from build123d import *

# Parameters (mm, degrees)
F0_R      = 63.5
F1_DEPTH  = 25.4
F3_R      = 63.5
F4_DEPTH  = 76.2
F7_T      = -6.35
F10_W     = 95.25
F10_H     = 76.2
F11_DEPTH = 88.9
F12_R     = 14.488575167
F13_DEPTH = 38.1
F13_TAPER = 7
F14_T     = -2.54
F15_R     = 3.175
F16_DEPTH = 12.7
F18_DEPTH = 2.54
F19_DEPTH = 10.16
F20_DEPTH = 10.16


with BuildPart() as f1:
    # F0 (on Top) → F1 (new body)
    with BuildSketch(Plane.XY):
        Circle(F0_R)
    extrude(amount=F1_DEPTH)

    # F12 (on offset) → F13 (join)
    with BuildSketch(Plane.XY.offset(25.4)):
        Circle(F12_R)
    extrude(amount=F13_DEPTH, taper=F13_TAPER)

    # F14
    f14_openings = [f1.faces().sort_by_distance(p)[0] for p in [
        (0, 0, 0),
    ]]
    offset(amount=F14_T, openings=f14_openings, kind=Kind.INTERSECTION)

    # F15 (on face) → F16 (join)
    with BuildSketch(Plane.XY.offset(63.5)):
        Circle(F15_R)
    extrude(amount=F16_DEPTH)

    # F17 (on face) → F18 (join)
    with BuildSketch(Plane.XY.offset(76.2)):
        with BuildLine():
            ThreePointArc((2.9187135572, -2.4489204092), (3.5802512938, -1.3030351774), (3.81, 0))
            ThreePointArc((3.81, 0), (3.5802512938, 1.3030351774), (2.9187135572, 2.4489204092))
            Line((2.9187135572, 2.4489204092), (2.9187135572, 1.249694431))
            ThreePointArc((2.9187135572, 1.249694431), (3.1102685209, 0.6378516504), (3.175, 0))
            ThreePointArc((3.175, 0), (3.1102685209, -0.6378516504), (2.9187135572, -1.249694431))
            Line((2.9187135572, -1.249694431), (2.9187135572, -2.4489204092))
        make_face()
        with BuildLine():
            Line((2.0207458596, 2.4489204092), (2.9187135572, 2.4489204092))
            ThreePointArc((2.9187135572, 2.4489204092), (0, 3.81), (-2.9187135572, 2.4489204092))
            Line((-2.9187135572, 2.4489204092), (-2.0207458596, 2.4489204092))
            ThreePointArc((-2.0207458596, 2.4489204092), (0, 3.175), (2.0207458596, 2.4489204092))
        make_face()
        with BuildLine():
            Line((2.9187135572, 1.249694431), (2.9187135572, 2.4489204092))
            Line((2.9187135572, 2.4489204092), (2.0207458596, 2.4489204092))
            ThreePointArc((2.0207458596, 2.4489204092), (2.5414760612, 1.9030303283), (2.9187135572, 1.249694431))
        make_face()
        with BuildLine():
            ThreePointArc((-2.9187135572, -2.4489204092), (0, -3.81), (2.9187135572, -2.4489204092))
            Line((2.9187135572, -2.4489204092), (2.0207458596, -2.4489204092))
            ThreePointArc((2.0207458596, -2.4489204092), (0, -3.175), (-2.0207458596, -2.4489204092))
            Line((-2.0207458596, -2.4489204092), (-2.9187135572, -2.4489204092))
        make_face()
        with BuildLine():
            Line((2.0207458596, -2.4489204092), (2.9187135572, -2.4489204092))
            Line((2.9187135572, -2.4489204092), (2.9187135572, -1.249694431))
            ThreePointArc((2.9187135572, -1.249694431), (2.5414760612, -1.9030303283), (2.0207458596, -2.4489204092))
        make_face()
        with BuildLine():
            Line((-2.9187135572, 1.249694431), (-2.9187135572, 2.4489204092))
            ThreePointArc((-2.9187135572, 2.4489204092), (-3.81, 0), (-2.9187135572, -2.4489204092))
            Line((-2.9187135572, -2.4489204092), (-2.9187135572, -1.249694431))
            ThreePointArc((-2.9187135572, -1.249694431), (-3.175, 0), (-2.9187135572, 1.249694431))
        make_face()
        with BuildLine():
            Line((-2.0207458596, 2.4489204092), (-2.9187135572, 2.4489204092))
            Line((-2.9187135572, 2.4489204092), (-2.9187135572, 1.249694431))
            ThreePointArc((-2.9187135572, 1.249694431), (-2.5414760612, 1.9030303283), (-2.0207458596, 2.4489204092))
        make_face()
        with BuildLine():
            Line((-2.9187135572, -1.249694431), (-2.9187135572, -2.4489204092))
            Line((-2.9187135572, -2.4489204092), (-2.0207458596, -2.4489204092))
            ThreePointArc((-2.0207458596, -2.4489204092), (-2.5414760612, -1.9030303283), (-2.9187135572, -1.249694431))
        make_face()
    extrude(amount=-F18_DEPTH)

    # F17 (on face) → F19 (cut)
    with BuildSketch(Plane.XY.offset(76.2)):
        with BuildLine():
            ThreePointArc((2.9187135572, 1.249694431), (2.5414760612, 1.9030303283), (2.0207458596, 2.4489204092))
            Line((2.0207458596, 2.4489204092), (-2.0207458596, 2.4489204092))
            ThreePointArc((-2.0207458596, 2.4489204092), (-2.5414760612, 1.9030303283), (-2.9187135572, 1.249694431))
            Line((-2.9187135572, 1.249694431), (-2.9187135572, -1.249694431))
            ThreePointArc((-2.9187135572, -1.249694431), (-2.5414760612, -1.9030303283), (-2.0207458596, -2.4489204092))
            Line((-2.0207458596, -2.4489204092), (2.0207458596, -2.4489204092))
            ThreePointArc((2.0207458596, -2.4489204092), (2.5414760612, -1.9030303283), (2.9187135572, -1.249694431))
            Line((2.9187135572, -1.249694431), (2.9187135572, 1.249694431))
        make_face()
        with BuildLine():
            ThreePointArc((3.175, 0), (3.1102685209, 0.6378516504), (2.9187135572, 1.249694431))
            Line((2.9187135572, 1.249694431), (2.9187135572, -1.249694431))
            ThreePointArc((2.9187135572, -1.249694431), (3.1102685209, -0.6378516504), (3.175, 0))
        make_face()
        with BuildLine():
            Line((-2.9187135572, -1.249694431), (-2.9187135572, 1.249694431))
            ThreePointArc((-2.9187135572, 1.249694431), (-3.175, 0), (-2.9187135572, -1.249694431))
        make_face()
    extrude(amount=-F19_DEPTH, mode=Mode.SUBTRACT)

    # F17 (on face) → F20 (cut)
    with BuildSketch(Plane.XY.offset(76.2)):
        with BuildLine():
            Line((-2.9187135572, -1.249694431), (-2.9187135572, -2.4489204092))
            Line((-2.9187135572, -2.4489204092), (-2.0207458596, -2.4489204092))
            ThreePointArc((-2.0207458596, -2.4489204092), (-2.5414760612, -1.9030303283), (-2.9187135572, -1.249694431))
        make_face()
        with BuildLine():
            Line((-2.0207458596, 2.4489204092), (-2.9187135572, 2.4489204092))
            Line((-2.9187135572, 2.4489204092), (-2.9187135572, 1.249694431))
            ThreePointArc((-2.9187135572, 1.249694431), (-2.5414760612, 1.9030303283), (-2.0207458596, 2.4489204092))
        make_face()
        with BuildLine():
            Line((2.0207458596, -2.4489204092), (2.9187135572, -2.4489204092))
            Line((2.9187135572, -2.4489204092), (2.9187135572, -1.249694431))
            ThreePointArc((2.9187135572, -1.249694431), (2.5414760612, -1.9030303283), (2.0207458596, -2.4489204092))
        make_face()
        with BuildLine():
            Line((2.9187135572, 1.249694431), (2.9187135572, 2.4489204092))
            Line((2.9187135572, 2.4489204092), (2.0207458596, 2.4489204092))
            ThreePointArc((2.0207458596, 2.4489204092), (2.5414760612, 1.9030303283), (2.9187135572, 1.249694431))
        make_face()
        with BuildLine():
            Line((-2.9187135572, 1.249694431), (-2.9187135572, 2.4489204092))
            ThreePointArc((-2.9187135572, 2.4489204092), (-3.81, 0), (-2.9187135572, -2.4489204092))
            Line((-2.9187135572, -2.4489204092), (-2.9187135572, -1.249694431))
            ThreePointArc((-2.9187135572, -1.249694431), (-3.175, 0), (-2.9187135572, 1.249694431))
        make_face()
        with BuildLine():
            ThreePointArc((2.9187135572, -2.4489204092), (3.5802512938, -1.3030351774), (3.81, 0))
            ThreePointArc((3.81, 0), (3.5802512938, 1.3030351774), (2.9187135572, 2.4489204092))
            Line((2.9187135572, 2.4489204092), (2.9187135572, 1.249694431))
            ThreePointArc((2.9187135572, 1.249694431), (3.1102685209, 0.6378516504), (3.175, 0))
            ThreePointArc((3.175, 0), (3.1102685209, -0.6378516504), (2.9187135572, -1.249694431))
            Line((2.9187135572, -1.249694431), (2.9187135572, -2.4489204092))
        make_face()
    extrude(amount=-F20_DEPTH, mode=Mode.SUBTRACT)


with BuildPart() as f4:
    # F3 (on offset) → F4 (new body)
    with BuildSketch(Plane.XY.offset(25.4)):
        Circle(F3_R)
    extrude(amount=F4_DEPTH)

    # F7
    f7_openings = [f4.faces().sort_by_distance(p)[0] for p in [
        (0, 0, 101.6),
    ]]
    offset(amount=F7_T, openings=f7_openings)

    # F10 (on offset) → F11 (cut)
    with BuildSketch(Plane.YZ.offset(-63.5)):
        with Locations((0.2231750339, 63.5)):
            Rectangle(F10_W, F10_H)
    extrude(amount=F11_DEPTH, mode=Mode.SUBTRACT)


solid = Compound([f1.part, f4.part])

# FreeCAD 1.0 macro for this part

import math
import FreeCAD as App
import Part
import Sketcher
Q = App.Units.Quantity


def faces_at(feature, points):
    """Names of the faces that lie closest to the given points."""
    faces = feature.Shape.Faces
    near = lambda p: min(range(len(faces)), key=lambda i: faces[i].distToShape(Part.Vertex(*p))[0])
    return sorted({f"Face{near(p) + 1}" for p in points})


def add_polygon(sketch, points):
    """Adds a closed chain of lines whose ends are joined by coincident constraints."""
    first, n = sketch.GeometryCount, len(points)
    for a, b in zip(points, points[1:] + points[:1]):
        sketch.addGeometry(Part.LineSegment(App.Vector(*a, 0), App.Vector(*b, 0)), False)
    for i in range(n):
        sketch.addConstraint(Sketcher.Constraint("Coincident", first + i, 2, first + (i + 1) % n, 1))

doc = App.newDocument("Part")
params = doc.addObject("Spreadsheet::Sheet", "Params")
for row, (alias, value) in enumerate([
    ("sketch1_diameter", "5 in"),
    ("pad1_length", "1 in"),
    ("pad2_length", "1.5 in"),
    ("pad2_taper", "-7 deg"),
    ("thickness_wall", "0.1 in"),
    ("sketch3_diameter", "0.25 in"),
    ("pad3_length", "0.5 in"),
    ("sketch4_radius", "0.15 in"),
    ("sketch4_radius2", "0.125 in"),
    ("pad4_length", "0.1 in"),
    ("sketch5_radius", "0.125 in"),
    ("pocket1_length", "0.4 in"),
    ("sketch6_radius", "0.15 in"),
    ("sketch6_radius2", "0.125 in"),
    ("pocket2_length", "0.4 in"),
    ("sketch7_diameter", "5 in"),
    ("pad5_length", "3 in"),
    ("thickness2_wall", "0.25 in"),
    ("sketch8_height", "3 in"),
    ("sketch8_width", "3.75 in"),
    ("pocket3_length", "3.5 in"),
], start=1):
    params.set(f"A{row}", alias)
    params.set(f"B{row}", "=" + value)
    params.setAlias(f"B{row}", alias)

body = doc.addObject("PartDesign::Body", "Body")

# Sketch on XY plane
sketch1 = body.newObject("Sketcher::SketchObject", "Sketch")
sketch1.AttachmentSupport = (doc.getObject("XY_Plane"), [""])
sketch1.MapMode = "FlatFace"
sketch1.addGeometry(Part.Circle(App.Vector(0, 0, 0), App.Vector(0, 0, 1), 64), False)
sketch1.addConstraint(Sketcher.Constraint("Coincident", 0, 3, -1, 1))
sketch1.addConstraint(Sketcher.Constraint("Diameter", 0, Q("5 in")))
sketch1.setExpression("Constraints[1]", "Params.sketch1_diameter")
pad1 = body.newObject("PartDesign::Pad", "Pad")
pad1.Profile = sketch1
pad1.setExpression("Length", "Params.pad1_length")

# Sketch on XY plane
sketch2 = body.newObject("Sketcher::SketchObject", "Sketch001")
sketch2.AttachmentSupport = (doc.getObject("XY_Plane"), [""])
sketch2.MapMode = "FlatFace"
sketch2.AttachmentOffset = App.Placement(App.Vector(0, 0, 1 * 25.4), App.Rotation())
sketch2.addGeometry(Part.Circle(App.Vector(0, 0, 0), App.Vector(0, 0, 1), 14), False)
sketch2.addConstraint(Sketcher.Constraint("Coincident", 0, 3, -1, 1))
sketch2.addConstraint(Sketcher.Constraint("Diameter", 0, 28.97715))
pad2 = body.newObject("PartDesign::Pad", "Pad001")
pad2.Profile = sketch2
pad2.setExpression("Length", "Params.pad2_length")
pad2.setExpression("TaperAngle", "Params.pad2_taper")
doc.recompute()

thickness = body.newObject("PartDesign::Thickness", "Thickness")
thickness.Base = (pad2, faces_at(pad2, [(0, 0, 0)]))
thickness.setExpression("Value", "Params.thickness_wall")
thickness.Reversed = True
thickness.Join = "Intersection"

# Sketch on XY plane
sketch3 = body.newObject("Sketcher::SketchObject", "Sketch002")
sketch3.AttachmentSupport = (doc.getObject("XY_Plane"), [""])
sketch3.MapMode = "FlatFace"
sketch3.AttachmentOffset = App.Placement(App.Vector(0, 0, 2.5 * 25.4), App.Rotation())
sketch3.addGeometry(Part.Circle(App.Vector(0, 0, 0), App.Vector(0, 0, 1), 3.2), False)
sketch3.addConstraint(Sketcher.Constraint("Coincident", 0, 3, -1, 1))
sketch3.addConstraint(Sketcher.Constraint("Diameter", 0, Q("0.25 in")))
sketch3.setExpression("Constraints[1]", "Params.sketch3_diameter")
pad3 = body.newObject("PartDesign::Pad", "Pad002")
pad3.Profile = sketch3
pad3.setExpression("Length", "Params.pad3_length")

# Sketch on XY plane
sketch4 = body.newObject("Sketcher::SketchObject", "Sketch003")
sketch4.AttachmentSupport = (doc.getObject("XY_Plane"), [""])
sketch4.MapMode = "FlatFace"
sketch4.AttachmentOffset = App.Placement(App.Vector(0, 0, 3 * 25.4), App.Rotation())
sketch4.addGeometry(Part.ArcOfCircle(Part.Circle(App.Vector(0, 0, 0), App.Vector(0, 0, 1), 3.8), math.radians(140), math.radians(220)), False)
sketch4.addGeometry(Part.ArcOfCircle(Part.Circle(App.Vector(0, 0, 0), App.Vector(0, 0, 1), 3.8), math.radians(-140), math.radians(-40)), False)
sketch4.addGeometry(Part.ArcOfCircle(Part.Circle(App.Vector(0, 0, 0), App.Vector(0, 0, 1), 3.8), math.radians(-40), math.radians(0)), False)
sketch4.addGeometry(Part.ArcOfCircle(Part.Circle(App.Vector(0, 0, 0), App.Vector(0, 0, 1), 3.8), math.radians(0), math.radians(40)), False)
sketch4.addGeometry(Part.ArcOfCircle(Part.Circle(App.Vector(0, 0, 0), App.Vector(0, 0, 1), 3.8), math.radians(40), math.radians(140)), False)
sketch4.addGeometry(Part.ArcOfCircle(Part.Circle(App.Vector(0, 0, 0), App.Vector(0, 0, 1), 3.2), math.radians(-130), math.radians(-50)), False)
sketch4.addGeometry(Part.ArcOfCircle(Part.Circle(App.Vector(0, 0, 0), App.Vector(0, 0, 1), 3.2), math.radians(-157), math.radians(-130)), False)
sketch4.addGeometry(Part.ArcOfCircle(Part.Circle(App.Vector(0, 0, 0), App.Vector(0, 0, 1), 3.2), math.radians(157), math.radians(203)), False)
sketch4.addGeometry(Part.ArcOfCircle(Part.Circle(App.Vector(0, 0, 0), App.Vector(0, 0, 1), 3.2), math.radians(130), math.radians(157)), False)
sketch4.addGeometry(Part.ArcOfCircle(Part.Circle(App.Vector(0, 0, 0), App.Vector(0, 0, 1), 3.2), math.radians(50), math.radians(130)), False)
sketch4.addGeometry(Part.ArcOfCircle(Part.Circle(App.Vector(0, 0, 0), App.Vector(0, 0, 1), 3.2), math.radians(23), math.radians(50)), False)
sketch4.addGeometry(Part.ArcOfCircle(Part.Circle(App.Vector(0, 0, 0), App.Vector(0, 0, 1), 3.2), math.radians(0), math.radians(23)), False)
sketch4.addGeometry(Part.ArcOfCircle(Part.Circle(App.Vector(0, 0, 0), App.Vector(0, 0, 1), 3.2), math.radians(-23), math.radians(0)), False)
sketch4.addGeometry(Part.ArcOfCircle(Part.Circle(App.Vector(0, 0, 0), App.Vector(0, 0, 1), 3.2), math.radians(-50), math.radians(-23)), False)
sketch4.addConstraint(Sketcher.Constraint("Tangent", 0, 2, 1, 1))
sketch4.addConstraint(Sketcher.Constraint("Tangent", 1, 2, 2, 1))
sketch4.addConstraint(Sketcher.Constraint("Tangent", 2, 2, 3, 1))
sketch4.addConstraint(Sketcher.Constraint("Tangent", 3, 2, 4, 1))
sketch4.addConstraint(Sketcher.Constraint("Tangent", 4, 2, 0, 1))
sketch4.addConstraint(Sketcher.Constraint("Tangent", 5, 1, 6, 2))
sketch4.addConstraint(Sketcher.Constraint("Tangent", 6, 1, 7, 2))
sketch4.addConstraint(Sketcher.Constraint("Tangent", 7, 1, 8, 2))
sketch4.addConstraint(Sketcher.Constraint("Tangent", 8, 1, 9, 2))
sketch4.addConstraint(Sketcher.Constraint("Tangent", 9, 1, 10, 2))
sketch4.addConstraint(Sketcher.Constraint("Tangent", 10, 1, 11, 2))
sketch4.addConstraint(Sketcher.Constraint("Tangent", 11, 1, 12, 2))
sketch4.addConstraint(Sketcher.Constraint("Tangent", 12, 1, 13, 2))
sketch4.addConstraint(Sketcher.Constraint("Tangent", 13, 1, 5, 2))
sketch4.addConstraint(Sketcher.Constraint("Coincident", 0, 3, -1, 1))
sketch4.addConstraint(Sketcher.Constraint("Coincident", 2, 3, -1, 1))
sketch4.addConstraint(Sketcher.Constraint("Coincident", 5, 3, -1, 1))
sketch4.addConstraint(Sketcher.Constraint("Coincident", 7, 3, -1, 1))
sketch4.addConstraint(Sketcher.Constraint("Coincident", 9, 3, -1, 1))
sketch4.addConstraint(Sketcher.Constraint("Coincident", 11, 3, -1, 1))
sketch4.addConstraint(Sketcher.Constraint("PointOnObject", 2, 2, -1))
sketch4.addConstraint(Sketcher.Constraint("PointOnObject", 11, 1, -1))
sketch4.addConstraint(Sketcher.Constraint("Horizontal", 0, 2, 1, 2))
sketch4.addConstraint(Sketcher.Constraint("Horizontal", 3, 2, 4, 2))
sketch4.addConstraint(Sketcher.Constraint("Horizontal", 1, 2, 5, 1))
sketch4.addConstraint(Sketcher.Constraint("Horizontal", 4, 2, 8, 1))
sketch4.addConstraint(Sketcher.Constraint("Horizontal", 8, 1, 9, 1))
sketch4.addConstraint(Sketcher.Constraint("Horizontal", 7, 1, 10, 1))
sketch4.addConstraint(Sketcher.Constraint("Horizontal", 6, 1, 12, 1))
sketch4.addConstraint(Sketcher.Constraint("Horizontal", 5, 1, 13, 1))
sketch4.addConstraint(Sketcher.Constraint("Vertical", 1, 2, 3, 2))
sketch4.addConstraint(Sketcher.Constraint("Vertical", 4, 2, 6, 1))
sketch4.addConstraint(Sketcher.Constraint("Vertical", 6, 1, 7, 1))
sketch4.addConstraint(Sketcher.Constraint("Radius", 0, Q("0.15 in")))
sketch4.addConstraint(Sketcher.Constraint("Radius", 5, Q("0.125 in")))
sketch4.addConstraint(Sketcher.Constraint("DistanceY", 0, 2, -1, 1, 2.44892))
sketch4.setExpression("Constraints[33]", "Params.sketch4_radius")
sketch4.setExpression("Constraints[34]", "Params.sketch4_radius2")
pad4 = body.newObject("PartDesign::Pad", "Pad003")
pad4.Profile = sketch4
pad4.setExpression("Length", "Params.pad4_length")
pad4.Reversed = True

# Sketch on XY plane
sketch5 = body.newObject("Sketcher::SketchObject", "Sketch004")
sketch5.AttachmentSupport = (doc.getObject("XY_Plane"), [""])
sketch5.MapMode = "FlatFace"
sketch5.AttachmentOffset = App.Placement(App.Vector(0, 0, 3 * 25.4), App.Rotation())
sketch5.addGeometry(Part.ArcOfCircle(Part.Circle(App.Vector(0, 0, 0), App.Vector(0, 0, 1), 3.2), math.radians(23), math.radians(50)), False)
sketch5.addGeometry(Part.LineSegment(App.Vector(2, 2.4, 0), App.Vector(-2, 2.4, 0)), False)
sketch5.addGeometry(Part.ArcOfCircle(Part.Circle(App.Vector(0, 0, 0), App.Vector(0, 0, 1), 3.2), math.radians(130), math.radians(157)), False)
sketch5.addGeometry(Part.ArcOfCircle(Part.Circle(App.Vector(0, 0, 0), App.Vector(0, 0, 1), 3.2), math.radians(157), math.radians(203)), False)
sketch5.addGeometry(Part.ArcOfCircle(Part.Circle(App.Vector(0, 0, 0), App.Vector(0, 0, 1), 3.2), math.radians(-157), math.radians(-130)), False)
sketch5.addGeometry(Part.LineSegment(App.Vector(-2, -2.4, 0), App.Vector(2, -2.4, 0)), False)
sketch5.addGeometry(Part.ArcOfCircle(Part.Circle(App.Vector(0, 0, 0), App.Vector(0, 0, 1), 3.2), math.radians(-50), math.radians(-23)), False)
sketch5.addGeometry(Part.ArcOfCircle(Part.Circle(App.Vector(0, 0, 0), App.Vector(0, 0, 1), 3.2), math.radians(-23), math.radians(0)), False)
sketch5.addGeometry(Part.ArcOfCircle(Part.Circle(App.Vector(0, 0, 0), App.Vector(0, 0, 1), 3.2), math.radians(0), math.radians(23)), False)
sketch5.addConstraint(Sketcher.Constraint("Coincident", 0, 2, 1, 1))
sketch5.addConstraint(Sketcher.Constraint("Coincident", 1, 2, 2, 1))
sketch5.addConstraint(Sketcher.Constraint("Tangent", 2, 2, 3, 1))
sketch5.addConstraint(Sketcher.Constraint("Tangent", 3, 2, 4, 1))
sketch5.addConstraint(Sketcher.Constraint("Coincident", 4, 2, 5, 1))
sketch5.addConstraint(Sketcher.Constraint("Coincident", 5, 2, 6, 1))
sketch5.addConstraint(Sketcher.Constraint("Tangent", 6, 2, 7, 1))
sketch5.addConstraint(Sketcher.Constraint("Tangent", 7, 2, 8, 1))
sketch5.addConstraint(Sketcher.Constraint("Tangent", 8, 2, 0, 1))
sketch5.addConstraint(Sketcher.Constraint("Horizontal", 1))
sketch5.addConstraint(Sketcher.Constraint("Horizontal", 5))
sketch5.addConstraint(Sketcher.Constraint("Coincident", 0, 3, -1, 1))
sketch5.addConstraint(Sketcher.Constraint("Coincident", 2, 3, -1, 1))
sketch5.addConstraint(Sketcher.Constraint("Coincident", 4, 3, -1, 1))
sketch5.addConstraint(Sketcher.Constraint("Coincident", 6, 3, -1, 1))
sketch5.addConstraint(Sketcher.Constraint("Equal", 0, 2))
sketch5.addConstraint(Sketcher.Constraint("Equal", 4, 6))
sketch5.addConstraint(Sketcher.Constraint("PointOnObject", 7, 2, -1))
sketch5.addConstraint(Sketcher.Constraint("Horizontal", 3, 2, 6, 2))
sketch5.addConstraint(Sketcher.Constraint("Horizontal", 2, 2, 8, 2))
sketch5.addConstraint(Sketcher.Constraint("Vertical", 2, 2, 3, 2))
sketch5.addConstraint(Sketcher.Constraint("Vertical", 1, 2, 4, 2))
sketch5.addConstraint(Sketcher.Constraint("Radius", 0, Q("0.125 in")))
sketch5.addConstraint(Sketcher.Constraint("DistanceX", 1, 2, 1, 1, 4.041492))
sketch5.addConstraint(Sketcher.Constraint("DistanceY", 3, 2, 2, 2, 2.499389))
sketch5.setExpression("Constraints[22]", "Params.sketch5_radius")
pocket1 = body.newObject("PartDesign::Pocket", "Pocket")
pocket1.Profile = sketch5
pocket1.setExpression("Length", "Params.pocket1_length")

# Sketch on XY plane
sketch6 = body.newObject("Sketcher::SketchObject", "Sketch005")
sketch6.AttachmentSupport = (doc.getObject("XY_Plane"), [""])
sketch6.MapMode = "FlatFace"
sketch6.AttachmentOffset = App.Placement(App.Vector(0, 0, 3 * 25.4), App.Rotation())
sketch6.addGeometry(Part.LineSegment(App.Vector(-2.9, -2.4, 0), App.Vector(-2, -2.4, 0)), False)
sketch6.addGeometry(Part.ArcOfCircle(Part.Circle(App.Vector(0, 0, 0), App.Vector(0, 0, 1), 3.2), math.radians(-157), math.radians(-130)), False)
sketch6.addGeometry(Part.ArcOfCircle(Part.Circle(App.Vector(0, 0, 0), App.Vector(0, 0, 1), 3.2), math.radians(157), math.radians(203)), False)
sketch6.addGeometry(Part.ArcOfCircle(Part.Circle(App.Vector(0, 0, 0), App.Vector(0, 0, 1), 3.2), math.radians(130), math.radians(157)), False)
sketch6.addGeometry(Part.LineSegment(App.Vector(-2, 2.4, 0), App.Vector(-2.9, 2.4, 0)), False)
sketch6.addGeometry(Part.ArcOfCircle(Part.Circle(App.Vector(0, 0, 0), App.Vector(0, 0, 1), 3.8), math.radians(140), math.radians(220)), False)
sketch6.addGeometry(Part.LineSegment(App.Vector(2, -2.4, 0), App.Vector(2.9, -2.4, 0)), False)
sketch6.addGeometry(Part.ArcOfCircle(Part.Circle(App.Vector(0, 0, 0), App.Vector(0, 0, 1), 3.8), math.radians(-40), math.radians(0)), False)
sketch6.addGeometry(Part.ArcOfCircle(Part.Circle(App.Vector(0, 0, 0), App.Vector(0, 0, 1), 3.8), math.radians(0), math.radians(40)), False)
sketch6.addGeometry(Part.LineSegment(App.Vector(2.9, 2.4, 0), App.Vector(2, 2.4, 0)), False)
sketch6.addGeometry(Part.ArcOfCircle(Part.Circle(App.Vector(0, 0, 0), App.Vector(0, 0, 1), 3.2), math.radians(23), math.radians(50)), False)
sketch6.addGeometry(Part.ArcOfCircle(Part.Circle(App.Vector(0, 0, 0), App.Vector(0, 0, 1), 3.2), math.radians(0), math.radians(23)), False)
sketch6.addGeometry(Part.ArcOfCircle(Part.Circle(App.Vector(0, 0, 0), App.Vector(0, 0, 1), 3.2), math.radians(-23), math.radians(0)), False)
sketch6.addGeometry(Part.ArcOfCircle(Part.Circle(App.Vector(0, 0, 0), App.Vector(0, 0, 1), 3.2), math.radians(-50), math.radians(-23)), False)
sketch6.addConstraint(Sketcher.Constraint("Coincident", 0, 2, 1, 2))
sketch6.addConstraint(Sketcher.Constraint("Tangent", 1, 1, 2, 2))
sketch6.addConstraint(Sketcher.Constraint("Tangent", 2, 1, 3, 2))
sketch6.addConstraint(Sketcher.Constraint("Coincident", 3, 1, 4, 1))
sketch6.addConstraint(Sketcher.Constraint("Coincident", 4, 2, 5, 1))
sketch6.addConstraint(Sketcher.Constraint("Coincident", 5, 2, 0, 1))
sketch6.addConstraint(Sketcher.Constraint("Coincident", 6, 2, 7, 1))
sketch6.addConstraint(Sketcher.Constraint("Tangent", 7, 2, 8, 1))
sketch6.addConstraint(Sketcher.Constraint("Coincident", 8, 2, 9, 1))
sketch6.addConstraint(Sketcher.Constraint("Coincident", 9, 2, 10, 2))
sketch6.addConstraint(Sketcher.Constraint("Tangent", 10, 1, 11, 2))
sketch6.addConstraint(Sketcher.Constraint("Tangent", 11, 1, 12, 2))
sketch6.addConstraint(Sketcher.Constraint("Tangent", 12, 1, 13, 2))
sketch6.addConstraint(Sketcher.Constraint("Coincident", 13, 1, 6, 1))
sketch6.addConstraint(Sketcher.Constraint("Horizontal", 0))
sketch6.addConstraint(Sketcher.Constraint("Horizontal", 4))
sketch6.addConstraint(Sketcher.Constraint("Horizontal", 6))
sketch6.addConstraint(Sketcher.Constraint("Horizontal", 9))
sketch6.addConstraint(Sketcher.Constraint("Coincident", 1, 3, -1, 1))
sketch6.addConstraint(Sketcher.Constraint("Coincident", 3, 3, -1, 1))
sketch6.addConstraint(Sketcher.Constraint("Coincident", 5, 3, -1, 1))
sketch6.addConstraint(Sketcher.Constraint("Coincident", 7, 3, -1, 1))
sketch6.addConstraint(Sketcher.Constraint("Coincident", 10, 3, -1, 1))
sketch6.addConstraint(Sketcher.Constraint("Coincident", 12, 3, -1, 1))
sketch6.addConstraint(Sketcher.Constraint("Equal", 5, 7))
sketch6.addConstraint(Sketcher.Constraint("Equal", 7, 8))
sketch6.addConstraint(Sketcher.Constraint("Equal", 3, 10))
sketch6.addConstraint(Sketcher.Constraint("Equal", 12, 13))
sketch6.addConstraint(Sketcher.Constraint("PointOnObject", 7, 2, -1))
sketch6.addConstraint(Sketcher.Constraint("PointOnObject", 11, 1, -1))
sketch6.addConstraint(Sketcher.Constraint("Horizontal", 5, 2, 6, 2))
sketch6.addConstraint(Sketcher.Constraint("Horizontal", 4, 2, 8, 2))
sketch6.addConstraint(Sketcher.Constraint("Horizontal", 2, 1, 10, 1))
sketch6.addConstraint(Sketcher.Constraint("Horizontal", 1, 1, 12, 1))
sketch6.addConstraint(Sketcher.Constraint("Vertical", 1, 1, 2, 1))
sketch6.addConstraint(Sketcher.Constraint("Vertical", 0, 2, 3, 1))
sketch6.addConstraint(Sketcher.Constraint("Vertical", 2, 1, 4, 2))
sketch6.addConstraint(Sketcher.Constraint("Radius", 5, Q("0.15 in")))
sketch6.addConstraint(Sketcher.Constraint("Radius", 1, Q("0.125 in")))
sketch6.addConstraint(Sketcher.Constraint("DistanceX", 0, 1, 0, 2, 0.897968))
sketch6.setExpression("Constraints[37]", "Params.sketch6_radius")
sketch6.setExpression("Constraints[38]", "Params.sketch6_radius2")
pocket2 = body.newObject("PartDesign::Pocket", "Pocket001")
pocket2.Profile = sketch6
pocket2.setExpression("Length", "Params.pocket2_length")
body2 = doc.addObject("PartDesign::Body", "Body001")

# Sketch on XY plane
sketch7 = body2.newObject("Sketcher::SketchObject", "Sketch006")
sketch7.AttachmentSupport = (doc.getObject("XY_Plane001"), [""])
sketch7.MapMode = "FlatFace"
sketch7.AttachmentOffset = App.Placement(App.Vector(0, 0, 1 * 25.4), App.Rotation())
sketch7.addGeometry(Part.Circle(App.Vector(0, 0, 0), App.Vector(0, 0, 1), 64), False)
sketch7.addConstraint(Sketcher.Constraint("Coincident", 0, 3, -1, 1))
sketch7.addConstraint(Sketcher.Constraint("Diameter", 0, Q("5 in")))
sketch7.setExpression("Constraints[1]", "Params.sketch7_diameter")
pad5 = body2.newObject("PartDesign::Pad", "Pad004")
pad5.Profile = sketch7
pad5.setExpression("Length", "Params.pad5_length")
doc.recompute()

thickness2 = body2.newObject("PartDesign::Thickness", "Thickness001")
thickness2.Base = (pad5, faces_at(pad5, [(0, 0, 101.6)]))
thickness2.setExpression("Value", "Params.thickness2_wall")
thickness2.Reversed = True
thickness2.Join = "Arc"

# Sketch on YZ plane
sketch8 = body2.newObject("Sketcher::SketchObject", "Sketch007")
sketch8.AttachmentSupport = (doc.getObject("YZ_Plane001"), [""])
sketch8.MapMode = "FlatFace"
sketch8.AttachmentOffset = App.Placement(App.Vector(0, 0, -2.5 * 25.4), App.Rotation())
add_polygon(sketch8, [(-47, 102), (-47, 25), (48, 25), (48, 102)])  # lines 0-3
sketch8.addConstraint(Sketcher.Constraint("Vertical", 0))
sketch8.addConstraint(Sketcher.Constraint("Horizontal", 1))
sketch8.addConstraint(Sketcher.Constraint("Vertical", 2))
sketch8.addConstraint(Sketcher.Constraint("Horizontal", 3))
sketch8.addConstraint(Sketcher.Constraint("DistanceY", 0, 2, 0, 1, Q("3 in")))
sketch8.addConstraint(Sketcher.Constraint("DistanceY", -1, 1, 0, 2, Q("1 in")))
sketch8.addConstraint(Sketcher.Constraint("DistanceX", 1, 1, 1, 2, Q("3.75 in")))
sketch8.addConstraint(Sketcher.Constraint("DistanceX", 0, 2, -1, 1, 47.401825))
sketch8.setExpression("Constraints[8]", "Params.sketch8_height")
sketch8.setExpression("Constraints[10]", "Params.sketch8_width")
pocket3 = body2.newObject("PartDesign::Pocket", "Pocket002")
pocket3.Profile = sketch8
pocket3.setExpression("Length", "Params.pocket3_length")
pocket3.Reversed = True

doc.recompute()
